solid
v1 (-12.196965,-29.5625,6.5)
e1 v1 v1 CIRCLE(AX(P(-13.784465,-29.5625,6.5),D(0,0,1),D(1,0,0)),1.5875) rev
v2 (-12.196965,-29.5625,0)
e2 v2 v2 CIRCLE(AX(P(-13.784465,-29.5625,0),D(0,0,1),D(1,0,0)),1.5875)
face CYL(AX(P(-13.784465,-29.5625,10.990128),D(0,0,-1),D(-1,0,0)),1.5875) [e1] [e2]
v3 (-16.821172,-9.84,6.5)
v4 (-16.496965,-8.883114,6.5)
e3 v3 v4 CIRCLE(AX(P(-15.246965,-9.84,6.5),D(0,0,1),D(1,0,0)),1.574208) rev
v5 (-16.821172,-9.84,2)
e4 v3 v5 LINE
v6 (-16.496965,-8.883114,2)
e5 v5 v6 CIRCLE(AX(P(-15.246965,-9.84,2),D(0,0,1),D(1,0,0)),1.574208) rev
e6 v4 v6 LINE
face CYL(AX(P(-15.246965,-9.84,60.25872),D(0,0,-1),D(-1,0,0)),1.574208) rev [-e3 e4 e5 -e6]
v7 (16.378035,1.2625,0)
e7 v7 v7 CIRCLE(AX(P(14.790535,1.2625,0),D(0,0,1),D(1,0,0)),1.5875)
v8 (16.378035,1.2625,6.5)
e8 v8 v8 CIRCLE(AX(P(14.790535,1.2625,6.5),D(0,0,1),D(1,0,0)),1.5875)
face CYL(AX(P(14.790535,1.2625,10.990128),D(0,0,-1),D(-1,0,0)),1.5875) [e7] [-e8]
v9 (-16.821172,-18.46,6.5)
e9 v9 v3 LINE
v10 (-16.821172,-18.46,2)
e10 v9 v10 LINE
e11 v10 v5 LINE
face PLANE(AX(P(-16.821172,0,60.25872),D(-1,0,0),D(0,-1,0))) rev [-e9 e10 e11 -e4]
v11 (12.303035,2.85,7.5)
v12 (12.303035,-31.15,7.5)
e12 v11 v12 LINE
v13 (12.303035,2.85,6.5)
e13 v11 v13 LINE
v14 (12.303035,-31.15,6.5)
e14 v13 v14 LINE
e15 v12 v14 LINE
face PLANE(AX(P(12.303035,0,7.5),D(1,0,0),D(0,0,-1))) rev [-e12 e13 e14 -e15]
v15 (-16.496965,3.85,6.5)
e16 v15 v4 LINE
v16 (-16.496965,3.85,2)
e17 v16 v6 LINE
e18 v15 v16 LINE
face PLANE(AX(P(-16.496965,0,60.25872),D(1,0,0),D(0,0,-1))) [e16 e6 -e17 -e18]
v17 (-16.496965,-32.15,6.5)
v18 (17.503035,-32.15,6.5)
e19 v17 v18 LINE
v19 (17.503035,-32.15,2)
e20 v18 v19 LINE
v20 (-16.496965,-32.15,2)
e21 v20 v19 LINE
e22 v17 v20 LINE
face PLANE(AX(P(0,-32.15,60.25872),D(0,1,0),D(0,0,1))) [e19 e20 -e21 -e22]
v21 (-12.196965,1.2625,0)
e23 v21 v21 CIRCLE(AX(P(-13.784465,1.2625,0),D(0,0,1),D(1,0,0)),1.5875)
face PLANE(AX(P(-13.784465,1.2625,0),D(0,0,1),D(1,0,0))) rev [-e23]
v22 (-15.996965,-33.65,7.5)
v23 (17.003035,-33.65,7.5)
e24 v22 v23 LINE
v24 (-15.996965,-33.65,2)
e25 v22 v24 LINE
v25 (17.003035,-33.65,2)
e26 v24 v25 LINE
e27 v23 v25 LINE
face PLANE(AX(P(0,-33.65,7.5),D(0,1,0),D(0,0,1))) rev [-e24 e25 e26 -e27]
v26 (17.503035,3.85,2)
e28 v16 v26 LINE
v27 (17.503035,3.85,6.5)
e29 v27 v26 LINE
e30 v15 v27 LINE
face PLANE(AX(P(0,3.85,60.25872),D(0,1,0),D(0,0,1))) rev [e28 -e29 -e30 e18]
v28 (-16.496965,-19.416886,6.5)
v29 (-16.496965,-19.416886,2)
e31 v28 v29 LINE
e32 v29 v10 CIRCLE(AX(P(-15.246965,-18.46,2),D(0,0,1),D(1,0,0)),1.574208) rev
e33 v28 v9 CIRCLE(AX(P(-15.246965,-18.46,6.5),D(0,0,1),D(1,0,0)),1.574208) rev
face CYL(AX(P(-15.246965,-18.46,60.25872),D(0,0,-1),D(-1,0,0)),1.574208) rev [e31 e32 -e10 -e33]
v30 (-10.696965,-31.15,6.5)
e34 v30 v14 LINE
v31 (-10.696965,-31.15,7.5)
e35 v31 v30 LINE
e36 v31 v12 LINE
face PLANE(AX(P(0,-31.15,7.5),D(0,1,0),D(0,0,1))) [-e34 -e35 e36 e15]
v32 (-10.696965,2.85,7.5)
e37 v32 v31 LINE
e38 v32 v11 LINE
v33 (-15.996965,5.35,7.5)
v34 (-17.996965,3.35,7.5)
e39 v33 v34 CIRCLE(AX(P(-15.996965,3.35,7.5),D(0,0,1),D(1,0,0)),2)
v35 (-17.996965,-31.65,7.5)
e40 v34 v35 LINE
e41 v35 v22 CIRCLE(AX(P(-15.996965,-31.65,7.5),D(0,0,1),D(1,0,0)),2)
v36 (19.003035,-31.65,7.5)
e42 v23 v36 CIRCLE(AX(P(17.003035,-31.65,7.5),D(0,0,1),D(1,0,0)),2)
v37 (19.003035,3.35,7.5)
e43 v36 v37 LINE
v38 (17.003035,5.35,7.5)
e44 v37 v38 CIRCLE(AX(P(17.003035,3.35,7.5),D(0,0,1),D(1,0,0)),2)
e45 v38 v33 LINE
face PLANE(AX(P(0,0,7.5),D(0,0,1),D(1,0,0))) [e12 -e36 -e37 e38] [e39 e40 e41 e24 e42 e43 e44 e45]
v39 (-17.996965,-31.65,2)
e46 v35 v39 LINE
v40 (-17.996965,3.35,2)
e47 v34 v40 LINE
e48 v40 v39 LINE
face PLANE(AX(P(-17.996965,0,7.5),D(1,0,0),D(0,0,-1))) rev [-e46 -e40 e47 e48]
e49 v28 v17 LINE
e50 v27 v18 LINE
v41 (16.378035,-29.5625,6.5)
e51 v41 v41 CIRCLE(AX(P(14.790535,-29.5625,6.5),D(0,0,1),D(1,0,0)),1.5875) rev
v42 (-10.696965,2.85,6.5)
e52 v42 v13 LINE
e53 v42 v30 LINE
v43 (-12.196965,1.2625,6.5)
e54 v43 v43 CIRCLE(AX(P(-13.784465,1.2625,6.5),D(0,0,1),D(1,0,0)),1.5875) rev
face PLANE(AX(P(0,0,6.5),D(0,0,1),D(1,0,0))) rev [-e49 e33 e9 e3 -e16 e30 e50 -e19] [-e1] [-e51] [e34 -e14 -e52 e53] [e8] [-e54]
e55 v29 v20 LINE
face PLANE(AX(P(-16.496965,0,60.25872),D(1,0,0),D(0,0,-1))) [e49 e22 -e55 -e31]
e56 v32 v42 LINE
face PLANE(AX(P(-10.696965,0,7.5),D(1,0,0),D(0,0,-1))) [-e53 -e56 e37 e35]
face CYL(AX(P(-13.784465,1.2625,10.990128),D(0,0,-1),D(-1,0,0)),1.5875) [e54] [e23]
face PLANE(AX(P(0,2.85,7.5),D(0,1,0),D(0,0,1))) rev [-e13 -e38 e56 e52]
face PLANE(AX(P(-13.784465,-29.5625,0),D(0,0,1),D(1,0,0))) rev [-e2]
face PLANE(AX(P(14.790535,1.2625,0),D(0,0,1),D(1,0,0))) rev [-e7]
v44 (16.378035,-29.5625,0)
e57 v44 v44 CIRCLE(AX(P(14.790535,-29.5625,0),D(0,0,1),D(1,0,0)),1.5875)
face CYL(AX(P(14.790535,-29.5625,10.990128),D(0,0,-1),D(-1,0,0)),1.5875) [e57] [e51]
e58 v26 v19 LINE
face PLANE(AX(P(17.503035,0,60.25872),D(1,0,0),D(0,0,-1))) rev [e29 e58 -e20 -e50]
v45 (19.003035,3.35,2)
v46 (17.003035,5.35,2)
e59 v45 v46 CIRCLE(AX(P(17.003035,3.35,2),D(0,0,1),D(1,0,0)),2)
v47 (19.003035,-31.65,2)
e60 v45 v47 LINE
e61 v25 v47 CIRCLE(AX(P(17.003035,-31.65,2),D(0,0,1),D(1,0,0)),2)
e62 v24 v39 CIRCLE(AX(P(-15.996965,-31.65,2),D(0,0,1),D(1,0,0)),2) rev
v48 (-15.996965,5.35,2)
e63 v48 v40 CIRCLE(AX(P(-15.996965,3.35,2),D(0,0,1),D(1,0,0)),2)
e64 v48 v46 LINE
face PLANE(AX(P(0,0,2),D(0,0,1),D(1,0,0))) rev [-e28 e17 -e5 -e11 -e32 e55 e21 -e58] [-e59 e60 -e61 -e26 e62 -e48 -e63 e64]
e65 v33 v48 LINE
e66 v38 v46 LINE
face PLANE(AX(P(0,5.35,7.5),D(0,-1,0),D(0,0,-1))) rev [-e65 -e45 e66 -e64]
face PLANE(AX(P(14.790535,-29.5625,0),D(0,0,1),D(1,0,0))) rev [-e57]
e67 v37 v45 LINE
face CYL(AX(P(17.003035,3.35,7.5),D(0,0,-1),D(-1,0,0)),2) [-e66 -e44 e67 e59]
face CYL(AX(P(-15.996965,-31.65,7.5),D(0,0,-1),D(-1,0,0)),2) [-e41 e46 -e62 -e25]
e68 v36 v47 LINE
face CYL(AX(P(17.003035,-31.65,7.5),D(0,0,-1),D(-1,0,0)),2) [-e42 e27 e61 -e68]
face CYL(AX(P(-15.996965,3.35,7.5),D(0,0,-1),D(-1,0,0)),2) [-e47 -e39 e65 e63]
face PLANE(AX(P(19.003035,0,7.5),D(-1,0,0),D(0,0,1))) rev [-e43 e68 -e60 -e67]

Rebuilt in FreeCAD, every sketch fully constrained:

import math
import FreeCAD as App
import Part
import Sketcher
Q = App.Units.Quantity


def add_polygon(sketch, points):
    """Adds a closed chain of lines whose ends are joined by coincident constraints."""
    first, n = sketch.GeometryCount, len(points)
    for a, b in zip(points, points[1:] + points[:1]):
        sketch.addGeometry(Part.LineSegment(App.Vector(*a, 0), App.Vector(*b, 0)), False)
    for i in range(n):
        sketch.addConstraint(Sketcher.Constraint("Coincident", first + i, 2, first + (i + 1) % n, 1))

doc = App.newDocument("Part")
body = doc.addObject("PartDesign::Body", "Body")

sketch1 = body.newObject("Sketcher::SketchObject", "Sketch")
sketch1.AttachmentSupport = (doc.getObject("XY_Plane"), [""])
sketch1.MapMode = "FlatFace"
sketch1.addGeometry(Part.Circle(App.Vector(14.8, 1.3, 0), App.Vector(0, 0, 1), 1.6), False)
sketch1.addConstraint([
    Sketcher.Constraint("Diameter", 0, Q("3.175 mm")),
    Sketcher.Constraint("DistanceY", -1, 1, 0, 3, Q("1.2625 mm")),
    Sketcher.Constraint("DistanceX", -1, 1, 0, 3, Q("14.790535 mm")),
])
pad1 = body.newObject("PartDesign::Pad", "Pad")
pad1.Profile = sketch1
pad1.Length = 6.5
body2 = doc.addObject("PartDesign::Body", "Body001")

sketch2 = body2.newObject("Sketcher::SketchObject", "Sketch001")
sketch2.AttachmentSupport = (doc.getObject("XY_Plane001"), [""])
sketch2.MapMode = "FlatFace"
sketch2.addGeometry(Part.Circle(App.Vector(14.8, -29.6, 0), App.Vector(0, 0, 1), 1.6), False)
sketch2.addConstraint([
    Sketcher.Constraint("Diameter", 0, Q("3.175 mm")),
    Sketcher.Constraint("DistanceY", 0, 3, -1, 1, Q("29.5625 mm")),
    Sketcher.Constraint("DistanceX", -1, 1, 0, 3, Q("14.790535 mm")),
])
pad2 = body2.newObject("PartDesign::Pad", "Pad001")
pad2.Profile = sketch2
pad2.Length = 6.5
body3 = doc.addObject("PartDesign::Body", "Body002")

sketch3 = body3.newObject("Sketcher::SketchObject", "Sketch002")
sketch3.AttachmentSupport = (doc.getObject("XY_Plane002"), [""])
sketch3.MapMode = "FlatFace"
sketch3.addGeometry(Part.Circle(App.Vector(-13.8, -29.6, 0), App.Vector(0, 0, 1), 1.6), False)
sketch3.addConstraint([
    Sketcher.Constraint("Diameter", 0, Q("3.175 mm")),
    Sketcher.Constraint("DistanceY", 0, 3, -1, 1, Q("29.5625 mm")),
    Sketcher.Constraint("DistanceX", 0, 3, -1, 1, Q("13.784465 mm")),
])
pad3 = body3.newObject("PartDesign::Pad", "Pad002")
pad3.Profile = sketch3
pad3.Length = 6.5
body4 = doc.addObject("PartDesign::Body", "Body003")

sketch4 = body4.newObject("Sketcher::SketchObject", "Sketch003")
sketch4.AttachmentSupport = (doc.getObject("XY_Plane003"), [""])
sketch4.MapMode = "FlatFace"
sketch4.addGeometry(Part.Circle(App.Vector(-13.8, 1.3, 0), App.Vector(0, 0, 1), 1.6), False)
sketch4.addConstraint([
    Sketcher.Constraint("Diameter", 0, Q("3.175 mm")),
    Sketcher.Constraint("DistanceY", -1, 1, 0, 3, Q("1.2625 mm")),
    Sketcher.Constraint("DistanceX", 0, 3, -1, 1, Q("13.784465 mm")),
])
pad4 = body4.newObject("PartDesign::Pad", "Pad003")
pad4.Profile = sketch4
pad4.Length = 6.5
body5 = doc.addObject("PartDesign::Body", "Body004")

sketch5 = body5.newObject("Sketcher::SketchObject", "Sketch004")
sketch5.AttachmentSupport = (doc.getObject("XY_Plane004"), [""])
sketch5.MapMode = "FlatFace"
sketch5.AttachmentOffset = App.Placement(App.Vector(0, 0, 2), App.Rotation())
sketch5.addGeometry([
    Part.ArcOfCircle(Part.Circle(App.Vector(-16, 3.3, 0), App.Vector(0, 0, 1), 2), math.radians(90), math.radians(180)),
    Part.LineSegment(App.Vector(-18, 3.4, 0), App.Vector(-18, -31.6, 0)),
    Part.ArcOfCircle(Part.Circle(App.Vector(-16, -31.6, 0), App.Vector(0, 0, 1), 2), math.radians(-180), math.radians(-90)),
    Part.LineSegment(App.Vector(-16, -33.6, 0), App.Vector(17, -33.6, 0)),
    Part.ArcOfCircle(Part.Circle(App.Vector(17, -31.6, 0), App.Vector(0, 0, 1), 2), math.radians(-90), math.radians(0)),
    Part.LineSegment(App.Vector(19, -31.6, 0), App.Vector(19, 3.4, 0)),
    Part.ArcOfCircle(Part.Circle(App.Vector(17, 3.3, 0), App.Vector(0, 0, 1), 2), math.radians(0), math.radians(90)),
    Part.LineSegment(App.Vector(17, 5.3, 0), App.Vector(-16, 5.3, 0)),
    Part.ArcOfCircle(Part.Circle(App.Vector(-15.2, -9.8, 0), App.Vector(0, 0, 1), 1.6), math.radians(143), math.radians(180)),
    Part.LineSegment(App.Vector(-16.5, -8.9, 0), App.Vector(-16.5, 3.9, 0)),
    Part.LineSegment(App.Vector(-16.5, 3.9, 0), App.Vector(17.5, 3.9, 0)),
    Part.LineSegment(App.Vector(17.5, 3.9, 0), App.Vector(17.5, -32.1, 0)),
    Part.LineSegment(App.Vector(17.5, -32.1, 0), App.Vector(-16.5, -32.1, 0)),
    Part.LineSegment(App.Vector(-16.5, -32.1, 0), App.Vector(-16.5, -19.4, 0)),
    Part.ArcOfCircle(Part.Circle(App.Vector(-15.2, -18.5, 0), App.Vector(0, 0, 1), 1.6), math.radians(-180), math.radians(-143)),
    Part.LineSegment(App.Vector(-16.8, -18.5, 0), App.Vector(-16.8, -9.8, 0)),
], False)
sketch5.addConstraint([
    Sketcher.Constraint("Tangent", 0, 2, 1, 1),
    Sketcher.Constraint("Tangent", 1, 2, 2, 1),
    Sketcher.Constraint("Tangent", 2, 2, 3, 1),
    Sketcher.Constraint("Tangent", 3, 2, 4, 1),
    Sketcher.Constraint("Tangent", 4, 2, 5, 1),
    Sketcher.Constraint("Tangent", 5, 2, 6, 1),
    Sketcher.Constraint("Tangent", 6, 2, 7, 1),
    Sketcher.Constraint("Tangent", 7, 2, 0, 1),
    Sketcher.Constraint("Coincident", 8, 1, 9, 1),
    Sketcher.Constraint("Coincident", 9, 2, 10, 1),
    Sketcher.Constraint("Coincident", 10, 2, 11, 1),
    Sketcher.Constraint("Coincident", 11, 2, 12, 1),
    Sketcher.Constraint("Coincident", 12, 2, 13, 1),
    Sketcher.Constraint("Coincident", 13, 2, 14, 2),
    Sketcher.Constraint("Tangent", 14, 1, 15, 1),
    Sketcher.Constraint("Tangent", 15, 2, 8, 2),
    Sketcher.Constraint("Vertical", 1),
    Sketcher.Constraint("Horizontal", 3),
    Sketcher.Constraint("Vertical", 5),
    Sketcher.Constraint("Horizontal", 7),
    Sketcher.Constraint("Vertical", 9),
    Sketcher.Constraint("Horizontal", 10),
    Sketcher.Constraint("Vertical", 11),
    Sketcher.Constraint("Horizontal", 12),
    Sketcher.Constraint("Vertical", 13),
    Sketcher.Constraint("Vertical", 15),
    Sketcher.Constraint("Equal", 0, 2),
    Sketcher.Constraint("Equal", 2, 4),
    Sketcher.Constraint("Equal", 4, 6),
    Sketcher.Constraint("Equal", 8, 14),
    Sketcher.Constraint("Vertical", 9, 2, 12, 2),
    Sketcher.Constraint("Equal", 9, 13),
    Sketcher.Constraint("Radius", 0, Q("2 mm")),
    Sketcher.Constraint("DistanceX", 3, 1, 3, 2, Q("33 mm")),
    Sketcher.Constraint("DistanceX", 10, 1, 10, 2, Q("34 mm")),
    Sketcher.Constraint("DistanceY", 1, 2, 1, 1, Q("35 mm")),
    Sketcher.Constraint("DistanceY", 11, 2, 11, 1, Q("36 mm")),
    Sketcher.Constraint("DistanceY", 15, 1, 15, 2, Q("8.62 mm")),
    Sketcher.Constraint("DistanceX", 8, 1, 0, 3, Q("0.5 mm")),
    Sketcher.Constraint("DistanceY", 0, 3, 9, 2, Q("0.5 mm")),
    Sketcher.Constraint("DistanceY", -1, 1, 0, 3, Q("3.35 mm")),
    Sketcher.Constraint("DistanceX", 0, 3, 8, 3, Q("0.75 mm")),
    Sketcher.Constraint("Radius", 8, Q("1.574208 mm")),
    Sketcher.Constraint("DistanceX", 0, 3, -1, 1, Q("15.996965 mm")),
])
pad5 = body5.newObject("PartDesign::Pad", "Pad004")
pad5.Profile = sketch5
pad5.Length = 4.5
body.AllowCompound = True
doc.recompute()

boolean = body.newObject("PartDesign::Boolean", "Boolean")
boolean.Type = "Fuse"
boolean.addObjects([body2])
doc.recompute()

boolean2 = body.newObject("PartDesign::Boolean", "Boolean001")
boolean2.Type = "Fuse"
boolean2.addObjects([body3])
doc.recompute()

boolean3 = body.newObject("PartDesign::Boolean", "Boolean002")
boolean3.Type = "Fuse"
boolean3.addObjects([body4])
doc.recompute()

boolean4 = body.newObject("PartDesign::Boolean", "Boolean003")
boolean4.Type = "Fuse"
boolean4.addObjects([body5])

sketch6 = body.newObject("Sketcher::SketchObject", "Sketch005")
sketch6.AttachmentSupport = (doc.getObject("XY_Plane"), [""])
sketch6.MapMode = "FlatFace"
sketch6.AttachmentOffset = App.Placement(App.Vector(0, 0, 6.5), App.Rotation())
sketch6.addGeometry(Part.ArcOfCircle(Part.Circle(App.Vector(17, 3.3, 0), App.Vector(0, 0, 1), 2), math.radians(0), math.radians(90)), False)
sketch6.addGeometry(Part.LineSegment(App.Vector(17, 5.3, 0), App.Vector(-16, 5.3, 0)), False)
sketch6.addGeometry(Part.ArcOfCircle(Part.Circle(App.Vector(-16, 3.3, 0), App.Vector(0, 0, 1), 2), math.radians(90), math.radians(180)), False)
sketch6.addGeometry(Part.LineSegment(App.Vector(-18, 3.4, 0), App.Vector(-18, -31.6, 0)), False)
sketch6.addGeometry(Part.ArcOfCircle(Part.Circle(App.Vector(-16, -31.6, 0), App.Vector(0, 0, 1), 2), math.radians(-180), math.radians(-90)), False)
sketch6.addGeometry(Part.LineSegment(App.Vector(-16, -33.6, 0), App.Vector(17, -33.6, 0)), False)
sketch6.addGeometry(Part.ArcOfCircle(Part.Circle(App.Vector(17, -31.6, 0), App.Vector(0, 0, 1), 2), math.radians(-90), math.radians(0)), False)
sketch6.addGeometry(Part.LineSegment(App.Vector(19, -31.6, 0), App.Vector(19, 3.4, 0)), False)
add_polygon(sketch6, [(12.3, -31.1), (-10.7, -31.1), (-10.7, 2.9), (12.3, 2.9)])
sketch6.addConstraint([
    Sketcher.Constraint("Tangent", 0, 2, 1, 1),
    Sketcher.Constraint("Tangent", 1, 2, 2, 1),
    Sketcher.Constraint("Tangent", 2, 2, 3, 1),
    Sketcher.Constraint("Tangent", 3, 2, 4, 1),
    Sketcher.Constraint("Tangent", 4, 2, 5, 1),
    Sketcher.Constraint("Tangent", 5, 2, 6, 1),
    Sketcher.Constraint("Tangent", 6, 2, 7, 1),
    Sketcher.Constraint("Tangent", 7, 2, 0, 1),
    Sketcher.Constraint("Horizontal", 1),
    Sketcher.Constraint("Vertical", 3),
    Sketcher.Constraint("Horizontal", 5),
    Sketcher.Constraint("Vertical", 7),
    Sketcher.Constraint("Horizontal", 8),
    Sketcher.Constraint("Vertical", 9),
    Sketcher.Constraint("Horizontal", 10),
    Sketcher.Constraint("Vertical", 11),
    Sketcher.Constraint("Equal", 0, 2),
    Sketcher.Constraint("Equal", 2, 4),
    Sketcher.Constraint("Equal", 4, 6),
    Sketcher.Constraint("Radius", 0, Q("2 mm")),
    Sketcher.Constraint("DistanceX", 1, 2, 1, 1, Q("33 mm")),
    Sketcher.Constraint("DistanceX", 8, 2, 8, 1, Q("23 mm")),
    Sketcher.Constraint("DistanceY", 3, 2, 3, 1, Q("35 mm")),
    Sketcher.Constraint("DistanceY", 9, 1, 9, 2, Q("34 mm")),
    Sketcher.Constraint("DistanceX", 4, 3, 8, 2, Q("5.3 mm")),
    Sketcher.Constraint("DistanceY", 4, 3, 8, 2, Q("0.5 mm")),
    Sketcher.Constraint("DistanceY", -1, 1, 0, 3, Q("3.35 mm")),
    Sketcher.Constraint("DistanceX", -1, 1, 0, 3, Q("17.003035 mm")),
])
pad6 = body.newObject("PartDesign::Pad", "Pad005")
pad6.Profile = sketch6
pad6.Length = 1

doc.recompute()
